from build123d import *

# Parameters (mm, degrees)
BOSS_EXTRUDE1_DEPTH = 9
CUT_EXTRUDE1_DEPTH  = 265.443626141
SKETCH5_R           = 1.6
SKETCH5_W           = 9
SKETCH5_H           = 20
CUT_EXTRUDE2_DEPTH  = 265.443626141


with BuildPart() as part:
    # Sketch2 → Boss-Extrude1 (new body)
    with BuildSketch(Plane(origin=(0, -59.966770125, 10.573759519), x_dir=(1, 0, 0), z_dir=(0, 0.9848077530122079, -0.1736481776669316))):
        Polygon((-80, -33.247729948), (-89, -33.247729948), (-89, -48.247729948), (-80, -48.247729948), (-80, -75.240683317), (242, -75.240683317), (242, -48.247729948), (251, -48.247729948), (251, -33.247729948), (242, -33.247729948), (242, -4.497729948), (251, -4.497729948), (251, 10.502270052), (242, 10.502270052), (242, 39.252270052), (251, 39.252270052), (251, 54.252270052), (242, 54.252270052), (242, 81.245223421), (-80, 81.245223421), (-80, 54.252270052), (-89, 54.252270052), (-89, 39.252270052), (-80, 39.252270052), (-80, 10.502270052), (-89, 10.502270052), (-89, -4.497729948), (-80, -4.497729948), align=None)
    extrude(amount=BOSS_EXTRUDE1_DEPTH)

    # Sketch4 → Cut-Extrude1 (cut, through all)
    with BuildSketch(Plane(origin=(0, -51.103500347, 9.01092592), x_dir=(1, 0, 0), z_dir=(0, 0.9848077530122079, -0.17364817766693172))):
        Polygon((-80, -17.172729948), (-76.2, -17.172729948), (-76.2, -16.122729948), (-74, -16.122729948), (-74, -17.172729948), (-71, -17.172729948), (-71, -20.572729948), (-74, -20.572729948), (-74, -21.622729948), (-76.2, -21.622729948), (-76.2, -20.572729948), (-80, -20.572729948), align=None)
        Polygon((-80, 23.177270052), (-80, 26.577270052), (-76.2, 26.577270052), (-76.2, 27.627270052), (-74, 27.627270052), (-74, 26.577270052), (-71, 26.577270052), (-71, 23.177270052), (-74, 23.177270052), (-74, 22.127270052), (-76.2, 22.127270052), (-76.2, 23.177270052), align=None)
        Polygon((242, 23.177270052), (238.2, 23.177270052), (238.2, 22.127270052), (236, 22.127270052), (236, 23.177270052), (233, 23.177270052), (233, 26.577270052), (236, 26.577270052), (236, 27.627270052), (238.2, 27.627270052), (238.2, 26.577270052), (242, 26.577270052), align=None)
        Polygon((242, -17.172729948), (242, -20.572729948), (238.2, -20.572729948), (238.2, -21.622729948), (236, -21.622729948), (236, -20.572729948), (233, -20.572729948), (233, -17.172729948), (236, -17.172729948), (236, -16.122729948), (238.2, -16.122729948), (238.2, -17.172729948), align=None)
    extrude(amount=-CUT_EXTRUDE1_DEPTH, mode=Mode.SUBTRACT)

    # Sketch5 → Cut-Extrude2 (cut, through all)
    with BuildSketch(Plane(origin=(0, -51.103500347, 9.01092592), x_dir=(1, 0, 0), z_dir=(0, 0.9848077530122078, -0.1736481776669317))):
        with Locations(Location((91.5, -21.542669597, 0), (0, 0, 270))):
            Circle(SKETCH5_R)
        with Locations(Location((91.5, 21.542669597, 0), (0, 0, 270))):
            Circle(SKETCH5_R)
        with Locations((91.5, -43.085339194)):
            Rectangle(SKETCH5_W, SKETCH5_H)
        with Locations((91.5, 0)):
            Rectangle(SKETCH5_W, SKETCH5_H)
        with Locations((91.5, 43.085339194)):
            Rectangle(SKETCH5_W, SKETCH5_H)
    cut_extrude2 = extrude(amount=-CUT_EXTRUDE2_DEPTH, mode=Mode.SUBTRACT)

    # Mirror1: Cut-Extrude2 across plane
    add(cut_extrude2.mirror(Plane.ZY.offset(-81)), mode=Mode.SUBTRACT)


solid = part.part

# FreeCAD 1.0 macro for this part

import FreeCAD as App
import Part
import Sketcher
from FreeCAD import Vector


def add_polygon(sketch, points):
    """Adds a closed chain of lines whose ends are joined by coincident constraints."""
    first, n = sketch.GeometryCount, len(points)
    for a, b in zip(points, points[1:] + points[:1]):
        sketch.addGeometry(Part.LineSegment(App.Vector(*a, 0), App.Vector(*b, 0)), False)
    for i in range(n):
        sketch.addConstraint(Sketcher.Constraint("Coincident", first + i, 2, first + (i + 1) % n, 1))

doc = App.newDocument("Part")
body = doc.addObject("PartDesign::Body", "Body")

# Sketch on an angled plane
sketch1 = body.newObject("Sketcher::SketchObject", "Sketch")
sketch1.Placement = App.Placement(Vector(0, -59.96677, 10.57376), App.Rotation(Vector(1, 0, 0), Vector(0, -0.173648178, -0.984807753), Vector(0, 0.984807753, -0.173648178), "ZXY"))
add_polygon(sketch1, [(-80, -33), (-89, -33), (-89, -48), (-80, -48), (-80, -75), (242, -75), (242, -48), (251, -48), (251, -33), (242, -33), (242, -4), (251, -4), (251, 11), (242, 11), (242, 39), (251, 39), (251, 54), (242, 54), (242, 81), (-80, 81), (-80, 54), (-89, 54), (-89, 39), (-80, 39), (-80, 11), (-89, 11), (-89, -4), (-80, -4)])  # lines 0-27
sketch1.addConstraint(Sketcher.Constraint("Horizontal", 0))
sketch1.addConstraint(Sketcher.Constraint("Vertical", 1))
sketch1.addConstraint(Sketcher.Constraint("Horizontal", 2))
sketch1.addConstraint(Sketcher.Constraint("Vertical", 3))
sketch1.addConstraint(Sketcher.Constraint("Horizontal", 4))
sketch1.addConstraint(Sketcher.Constraint("Vertical", 5))
sketch1.addConstraint(Sketcher.Constraint("Horizontal", 6))
sketch1.addConstraint(Sketcher.Constraint("Vertical", 7))
sketch1.addConstraint(Sketcher.Constraint("Horizontal", 8))
sketch1.addConstraint(Sketcher.Constraint("Vertical", 9))
sketch1.addConstraint(Sketcher.Constraint("Horizontal", 10))
sketch1.addConstraint(Sketcher.Constraint("Vertical", 11))
sketch1.addConstraint(Sketcher.Constraint("Horizontal", 12))
sketch1.addConstraint(Sketcher.Constraint("Vertical", 13))
sketch1.addConstraint(Sketcher.Constraint("Horizontal", 14))
sketch1.addConstraint(Sketcher.Constraint("Vertical", 15))
sketch1.addConstraint(Sketcher.Constraint("Horizontal", 16))
sketch1.addConstraint(Sketcher.Constraint("Vertical", 17))
sketch1.addConstraint(Sketcher.Constraint("Horizontal", 18))
sketch1.addConstraint(Sketcher.Constraint("Vertical", 19))
sketch1.addConstraint(Sketcher.Constraint("Horizontal", 20))
sketch1.addConstraint(Sketcher.Constraint("Vertical", 21))
sketch1.addConstraint(Sketcher.Constraint("Horizontal", 22))
sketch1.addConstraint(Sketcher.Constraint("Vertical", 23))
sketch1.addConstraint(Sketcher.Constraint("Horizontal", 24))
sketch1.addConstraint(Sketcher.Constraint("Vertical", 25))
sketch1.addConstraint(Sketcher.Constraint("Horizontal", 26))
sketch1.addConstraint(Sketcher.Constraint("Vertical", 27))
sketch1.addConstraint(Sketcher.Constraint("Horizontal", 2, 2, 5, 2))
sketch1.addConstraint(Sketcher.Constraint("Horizontal", 0, 2, 7, 2))
sketch1.addConstraint(Sketcher.Constraint("Horizontal", 16, 2, 19, 2))
sketch1.addConstraint(Sketcher.Constraint("Horizontal", 14, 2, 21, 2))
sketch1.addConstraint(Sketcher.Constraint("Horizontal", 12, 2, 23, 2))
sketch1.addConstraint(Sketcher.Constraint("Horizontal", 10, 2, 25, 2))
sketch1.addConstraint(Sketcher.Constraint("Vertical", 5, 2, 8, 2))
sketch1.addConstraint(Sketcher.Constraint("Vertical", 7, 2, 10, 2))
sketch1.addConstraint(Sketcher.Constraint("Vertical", 9, 2, 12, 2))
sketch1.addConstraint(Sketcher.Constraint("Vertical", 11, 2, 14, 2))
sketch1.addConstraint(Sketcher.Constraint("Vertical", 13, 2, 16, 2))
sketch1.addConstraint(Sketcher.Constraint("Vertical", 3, 2, 18, 2))
sketch1.addConstraint(Sketcher.Constraint("Vertical", 1, 2, 20, 2))
sketch1.addConstraint(Sketcher.Constraint("Vertical", 19, 2, 22, 2))
sketch1.addConstraint(Sketcher.Constraint("Vertical", 21, 2, 24, 2))
sketch1.addConstraint(Sketcher.Constraint("Vertical", 23, 2, 26, 2))
sketch1.addConstraint(Sketcher.Constraint("Equal", 2, 6))
sketch1.addConstraint(Sketcher.Constraint("Equal", 7, 11))
sketch1.addConstraint(Sketcher.Constraint("Equal", 9, 13))
sketch1.addConstraint(Sketcher.Constraint("Equal", 11, 15))
sketch1.addConstraint(Sketcher.Constraint("Equal", 5, 17))
sketch1.addConstraint(Sketcher.Constraint("DistanceX", 0, 2, 0, 1, 9.0))
sketch1.addConstraint(Sketcher.Constraint("DistanceX", 4, 1, 4, 2, 322.0))
sketch1.addConstraint(Sketcher.Constraint("DistanceY", 1, 2, 1, 1, 15.0))
sketch1.addConstraint(Sketcher.Constraint("DistanceX", 0, 2, -1, 1, 89.0))
sketch1.addConstraint(Sketcher.Constraint("DistanceY", 9, 1, 9, 2, 28.75))
sketch1.addConstraint(Sketcher.Constraint("DistanceY", 3, 2, 3, 1, 26.992953))
sketch1.addConstraint(Sketcher.Constraint("DistanceY", 0, 2, -1, 1, 33.24773))
pad1 = body.newObject("PartDesign::Pad", "Pad")
pad1.Profile = sketch1
pad1.Length = 9

# Sketch on an angled plane
sketch2 = body.newObject("Sketcher::SketchObject", "Sketch001")
sketch2.Placement = App.Placement(Vector(0, -51.1035, 9.010926), App.Rotation(Vector(1, 0, 0), Vector(0, -0.173648178, -0.984807753), Vector(0, 0.984807753, -0.173648178), "ZXY"))
add_polygon(sketch2, [(-76.2, -17.2), (-80, -17.2), (-80, -20.6), (-76.2, -20.6), (-76.2, -21.6), (-74, -21.6), (-74, -20.6), (-71, -20.6), (-71, -17.2), (-74, -17.2), (-74, -16.1), (-76.2, -16.1)])  # lines 0-11
add_polygon(sketch2, [(-80, 26.6), (-80, 23.2), (-76.2, 23.2), (-76.2, 22.1), (-74, 22.1), (-74, 23.2), (-71, 23.2), (-71, 26.6), (-74, 26.6), (-74, 27.6), (-76.2, 27.6), (-76.2, 26.6)])  # lines 12-23
add_polygon(sketch2, [(238.2, 23.2), (242, 23.2), (242, 26.6), (238.2, 26.6), (238.2, 27.6), (236, 27.6), (236, 26.6), (233, 26.6), (233, 23.2), (236, 23.2), (236, 22.1), (238.2, 22.1)])  # lines 24-35
add_polygon(sketch2, [(242, -20.6), (242, -17.2), (238.2, -17.2), (238.2, -16.1), (236, -16.1), (236, -17.2), (233, -17.2), (233, -20.6), (236, -20.6), (236, -21.6), (238.2, -21.6), (238.2, -20.6)])  # lines 36-47
sketch2.addConstraint(Sketcher.Constraint("Horizontal", 0))
sketch2.addConstraint(Sketcher.Constraint("Vertical", 1))
sketch2.addConstraint(Sketcher.Constraint("Horizontal", 2))
sketch2.addConstraint(Sketcher.Constraint("Vertical", 3))
sketch2.addConstraint(Sketcher.Constraint("Horizontal", 4))
sketch2.addConstraint(Sketcher.Constraint("Vertical", 5))
sketch2.addConstraint(Sketcher.Constraint("Horizontal", 6))
sketch2.addConstraint(Sketcher.Constraint("Vertical", 7))
sketch2.addConstraint(Sketcher.Constraint("Horizontal", 8))
sketch2.addConstraint(Sketcher.Constraint("Vertical", 9))
sketch2.addConstraint(Sketcher.Constraint("Horizontal", 10))
sketch2.addConstraint(Sketcher.Constraint("Vertical", 11))
sketch2.addConstraint(Sketcher.Constraint("Vertical", 12))
sketch2.addConstraint(Sketcher.Constraint("Horizontal", 13))
sketch2.addConstraint(Sketcher.Constraint("Vertical", 14))
sketch2.addConstraint(Sketcher.Constraint("Horizontal", 15))
sketch2.addConstraint(Sketcher.Constraint("Vertical", 16))
sketch2.addConstraint(Sketcher.Constraint("Horizontal", 17))
sketch2.addConstraint(Sketcher.Constraint("Vertical", 18))
sketch2.addConstraint(Sketcher.Constraint("Horizontal", 19))
sketch2.addConstraint(Sketcher.Constraint("Vertical", 20))
sketch2.addConstraint(Sketcher.Constraint("Horizontal", 21))
sketch2.addConstraint(Sketcher.Constraint("Vertical", 22))
sketch2.addConstraint(Sketcher.Constraint("Horizontal", 23))
sketch2.addConstraint(Sketcher.Constraint("Horizontal", 24))
sketch2.addConstraint(Sketcher.Constraint("Vertical", 25))
sketch2.addConstraint(Sketcher.Constraint("Horizontal", 26))
sketch2.addConstraint(Sketcher.Constraint("Vertical", 27))
sketch2.addConstraint(Sketcher.Constraint("Horizontal", 28))
sketch2.addConstraint(Sketcher.Constraint("Vertical", 29))
sketch2.addConstraint(Sketcher.Constraint("Horizontal", 30))
sketch2.addConstraint(Sketcher.Constraint("Vertical", 31))
sketch2.addConstraint(Sketcher.Constraint("Horizontal", 32))
sketch2.addConstraint(Sketcher.Constraint("Vertical", 33))
sketch2.addConstraint(Sketcher.Constraint("Horizontal", 34))
sketch2.addConstraint(Sketcher.Constraint("Vertical", 35))
sketch2.addConstraint(Sketcher.Constraint("Vertical", 36))
sketch2.addConstraint(Sketcher.Constraint("Horizontal", 37))
sketch2.addConstraint(Sketcher.Constraint("Vertical", 38))
sketch2.addConstraint(Sketcher.Constraint("Horizontal", 39))
sketch2.addConstraint(Sketcher.Constraint("Vertical", 40))
sketch2.addConstraint(Sketcher.Constraint("Horizontal", 41))
sketch2.addConstraint(Sketcher.Constraint("Vertical", 42))
sketch2.addConstraint(Sketcher.Constraint("Horizontal", 43))
sketch2.addConstraint(Sketcher.Constraint("Vertical", 44))
sketch2.addConstraint(Sketcher.Constraint("Horizontal", 45))
sketch2.addConstraint(Sketcher.Constraint("Vertical", 46))
sketch2.addConstraint(Sketcher.Constraint("Horizontal", 47))
sketch2.addConstraint(Sketcher.Constraint("Horizontal", 2, 2, 5, 2))
sketch2.addConstraint(Sketcher.Constraint("Horizontal", 0, 2, 7, 2))
sketch2.addConstraint(Sketcher.Constraint("Horizontal", 13, 2, 16, 2))
sketch2.addConstraint(Sketcher.Constraint("Horizontal", 19, 2, 22, 2))
sketch2.addConstraint(Sketcher.Constraint("Horizontal", 17, 2, 24, 2))
sketch2.addConstraint(Sketcher.Constraint("Horizontal", 23, 2, 25, 2))
sketch2.addConstraint(Sketcher.Constraint("Horizontal", 21, 2, 27, 2))
sketch2.addConstraint(Sketcher.Constraint("Horizontal", 26, 2, 29, 2))
sketch2.addConstraint(Sketcher.Constraint("Horizontal", 24, 2, 31, 2))
sketch2.addConstraint(Sketcher.Constraint("Horizontal", 15, 2, 33, 2))
sketch2.addConstraint(Sketcher.Constraint("Horizontal", 11, 2, 36, 2))
sketch2.addConstraint(Sketcher.Constraint("Horizontal", 10, 2, 38, 2))
sketch2.addConstraint(Sketcher.Constraint("Horizontal", 37, 2, 40, 2))
sketch2.addConstraint(Sketcher.Constraint("Horizontal", 6, 2, 42, 2))
sketch2.addConstraint(Sketcher.Constraint("Horizontal", 4, 2, 44, 2))
sketch2.addConstraint(Sketcher.Constraint("Horizontal", 43, 2, 46, 2))
sketch2.addConstraint(Sketcher.Constraint("Vertical", 5, 2, 8, 2))
sketch2.addConstraint(Sketcher.Constraint("Vertical", 3, 2, 10, 2))
sketch2.addConstraint(Sketcher.Constraint("Vertical", 1, 2, 12, 2))
sketch2.addConstraint(Sketcher.Constraint("Vertical", 11, 2, 13, 2))
sketch2.addConstraint(Sketcher.Constraint("Vertical", 9, 2, 15, 2))
sketch2.addConstraint(Sketcher.Constraint("Vertical", 7, 2, 17, 2))
sketch2.addConstraint(Sketcher.Constraint("Vertical", 16, 2, 19, 2))
sketch2.addConstraint(Sketcher.Constraint("Vertical", 14, 2, 21, 2))
sketch2.addConstraint(Sketcher.Constraint("Vertical", 29, 2, 32, 2))
sketch2.addConstraint(Sketcher.Constraint("Vertical", 27, 2, 34, 2))
sketch2.addConstraint(Sketcher.Constraint("Vertical", 25, 2, 36, 2))
sketch2.addConstraint(Sketcher.Constraint("Vertical", 35, 2, 37, 2))
sketch2.addConstraint(Sketcher.Constraint("Vertical", 33, 2, 39, 2))
sketch2.addConstraint(Sketcher.Constraint("Vertical", 31, 2, 41, 2))
sketch2.addConstraint(Sketcher.Constraint("Vertical", 40, 2, 43, 2))
sketch2.addConstraint(Sketcher.Constraint("Vertical", 38, 2, 45, 2))
sketch2.addConstraint(Sketcher.Constraint("Equal", 23, 24))
sketch2.addConstraint(Sketcher.Constraint("Equal", 21, 28))
sketch2.addConstraint(Sketcher.Constraint("Equal", 19, 30))
sketch2.addConstraint(Sketcher.Constraint("Equal", 5, 9))
sketch2.addConstraint(Sketcher.Constraint("Equal", 7, 12))
sketch2.addConstraint(Sketcher.Constraint("Equal", 11, 14))
sketch2.addConstraint(Sketcher.Constraint("Equal", 16, 20))
sketch2.addConstraint(Sketcher.Constraint("DistanceX", 6, 1, 6, 2, 3.0))
sketch2.addConstraint(Sketcher.Constraint("DistanceX", 0, 2, 0, 1, 3.8))
sketch2.addConstraint(Sketcher.Constraint("DistanceX", 4, 1, 4, 2, 2.2))
sketch2.addConstraint(Sketcher.Constraint("DistanceY", 1, 2, 1, 1, 3.4))
sketch2.addConstraint(Sketcher.Constraint("DistanceX", 0, 2, -1, 1, 80.0))
sketch2.addConstraint(Sketcher.Constraint("DistanceX", -1, 1, 24, 2, 242.0))
sketch2.addConstraint(Sketcher.Constraint("DistanceY", 3, 2, 3, 1, 1.05))
sketch2.addConstraint(Sketcher.Constraint("DistanceY", 10, 2, 12, 2, 39.3))
sketch2.addConstraint(Sketcher.Constraint("DistanceY", 0, 2, -1, 1, 17.17273))
pocket1 = body.newObject("PartDesign::Pocket", "Pocket")
pocket1.Profile = sketch2
pocket1.Type = "ThroughAll"

# Sketch on an angled plane
sketch3 = body.newObject("Sketcher::SketchObject", "Sketch002")
sketch3.Placement = App.Placement(Vector(0, -51.1035, 9.010926), App.Rotation(Vector(1, 0, 0), Vector(0, -0.173648178, -0.984807753), Vector(0, 0.984807753, -0.173648178), "ZXY"))
sketch3.addGeometry(Part.Circle(Vector(91.5, -21.5, 0), Vector(0, 0, 1), 1.6), False)  # 0
sketch3.addGeometry(Part.Circle(Vector(91.5, 21.5, 0), Vector(0, 0, 1), 1.6), False)  # 1
add_polygon(sketch3, [(87, -33.1), (87, -53.1), (96, -53.1), (96, -33.1)])  # lines 2-5
add_polygon(sketch3, [(87, 10), (87, -10), (96, -10), (96, 10)])  # lines 6-9
add_polygon(sketch3, [(87, 53.1), (87, 33.1), (96, 33.1), (96, 53.1)])  # lines 10-13
sketch3.addConstraint(Sketcher.Constraint("Vertical", 2))
sketch3.addConstraint(Sketcher.Constraint("Horizontal", 3))
sketch3.addConstraint(Sketcher.Constraint("Vertical", 4))
sketch3.addConstraint(Sketcher.Constraint("Horizontal", 5))
sketch3.addConstraint(Sketcher.Constraint("Vertical", 6))
sketch3.addConstraint(Sketcher.Constraint("Horizontal", 7))
sketch3.addConstraint(Sketcher.Constraint("Vertical", 8))
sketch3.addConstraint(Sketcher.Constraint("Horizontal", 9))
sketch3.addConstraint(Sketcher.Constraint("Vertical", 10))
sketch3.addConstraint(Sketcher.Constraint("Horizontal", 11))
sketch3.addConstraint(Sketcher.Constraint("Vertical", 12))
sketch3.addConstraint(Sketcher.Constraint("Horizontal", 13))
sketch3.addConstraint(Sketcher.Constraint("Equal", 0, 1))
sketch3.addConstraint(Sketcher.Constraint("Symmetric", 0, 3, 1, 3, -1))
sketch3.addConstraint(Sketcher.Constraint("Symmetric", 5, 2, 10, 2, -1))
sketch3.addConstraint(Sketcher.Constraint("Symmetric", 3, 2, 12, 2, -1))
sketch3.addConstraint(Sketcher.Constraint("Vertical", 5, 2, 6, 2))
sketch3.addConstraint(Sketcher.Constraint("Vertical", 4, 2, 7, 2))
sketch3.addConstraint(Sketcher.Constraint("Equal", 4, 6))
sketch3.addConstraint(Sketcher.Constraint("Diameter", 0, 3.2))
sketch3.addConstraint(Sketcher.Constraint("DistanceX", 3, 1, 3, 2, 9.0))
sketch3.addConstraint(Sketcher.Constraint("DistanceY", 2, 2, 2, 1, 20.0))
sketch3.addConstraint(Sketcher.Constraint("DistanceX", -1, 1, 2, 2, 87.0))
sketch3.addConstraint(Sketcher.Constraint("DistanceY", 6, 2, -1, 1, 10.0))
sketch3.addConstraint(Sketcher.Constraint("DistanceX", -1, 1, 0, 3, 91.5))
sketch3.addConstraint(Sketcher.Constraint("DistanceY", 0, 3, -1, 1, 21.54267))
sketch3.addConstraint(Sketcher.Constraint("DistanceY", 2, 2, -1, 1, 53.085339))
pocket2 = body.newObject("PartDesign::Pocket", "Pocket001")
pocket2.Profile = sketch3
pocket2.Type = "ThroughAll"
doc.recompute()

datumplane = body.newObject("PartDesign::Plane", "DatumPlane")
datumplane.AttachmentSupport = (doc.getObject("YZ_Plane"), [""])
datumplane.MapMode = "FlatFace"
datumplane.AttachmentOffset = App.Placement(Vector(0, 0, 81), App.Rotation())
mirrored = body.newObject("PartDesign::Mirrored", "Mirrored")
mirrored.Originals = [pocket2]
mirrored.MirrorPlane = (datumplane, [""])
body.Tip = mirrored

doc.recompute()
